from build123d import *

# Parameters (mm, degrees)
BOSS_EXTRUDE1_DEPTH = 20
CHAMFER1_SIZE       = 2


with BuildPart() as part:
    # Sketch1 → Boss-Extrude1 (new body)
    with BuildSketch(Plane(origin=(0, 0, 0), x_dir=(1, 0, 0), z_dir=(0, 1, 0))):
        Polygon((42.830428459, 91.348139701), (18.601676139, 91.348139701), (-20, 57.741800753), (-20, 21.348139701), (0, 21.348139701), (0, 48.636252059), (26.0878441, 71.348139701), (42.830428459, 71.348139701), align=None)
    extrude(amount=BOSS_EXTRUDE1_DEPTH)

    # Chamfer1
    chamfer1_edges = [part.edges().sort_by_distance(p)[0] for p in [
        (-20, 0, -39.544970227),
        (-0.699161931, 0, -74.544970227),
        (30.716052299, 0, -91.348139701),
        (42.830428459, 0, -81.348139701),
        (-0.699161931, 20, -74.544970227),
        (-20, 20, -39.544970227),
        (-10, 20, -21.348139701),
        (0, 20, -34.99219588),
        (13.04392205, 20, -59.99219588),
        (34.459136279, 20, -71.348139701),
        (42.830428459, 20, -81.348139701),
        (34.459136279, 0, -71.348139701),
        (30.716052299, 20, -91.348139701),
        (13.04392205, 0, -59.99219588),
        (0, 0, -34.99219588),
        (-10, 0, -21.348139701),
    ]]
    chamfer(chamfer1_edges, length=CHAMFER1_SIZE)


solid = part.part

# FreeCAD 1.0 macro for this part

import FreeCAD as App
import Part
import Sketcher

V = App.Vector


def edges_at(feature, points):
    """Names of the edges that pass closest to the given points."""
    edges = feature.Shape.Edges
    near = lambda p: min(range(len(edges)), key=lambda i: edges[i].distToShape(Part.Vertex(*p))[0])
    return sorted({f"Edge{near(p) + 1}" for p in points})


def add_polygon(sketch, points):
    """Adds a closed chain of lines whose ends are joined by coincident constraints."""
    first, n = sketch.GeometryCount, len(points)
    for a, b in zip(points, points[1:] + points[:1]):
        sketch.addGeometry(Part.LineSegment(App.Vector(*a, 0), App.Vector(*b, 0)), False)
    for i in range(n):
        sketch.addConstraint(Sketcher.Constraint("Coincident", first + i, 2, first + (i + 1) % n, 1))

doc = App.newDocument("Part")
body = doc.addObject("PartDesign::Body", "Body")

sketch1 = body.newObject("Sketcher::SketchObject", "Sketch")
sketch1.AttachmentSupport = (doc.getObject("XZ_Plane"), [""])
sketch1.MapMode = "FlatFace"
add_polygon(sketch1, [(43, -91), (19, -91), (-20, -58), (-20, -21), (0, -21), (0, -49), (26, -71), (43, -71)])
sketch1.addConstraint([
    Sketcher.Constraint("Horizontal", 0),
    Sketcher.Constraint("Vertical", 2),
    Sketcher.Constraint("Horizontal", 3),
    Sketcher.Constraint("Vertical", 4),
    Sketcher.Constraint("Horizontal", 6),
    Sketcher.Constraint("Vertical", 7),
    Sketcher.Constraint("PointOnObject", 3, 2, -2),
    Sketcher.Constraint("Parallel", 1, 5),
    Sketcher.Constraint("Equal", 3, 7),
    Sketcher.Constraint("DistanceX", 3, 1, 3, 2, 20.0),
    Sketcher.Constraint("DistanceY", 0, 2, 2, 2, 70.0),
    Sketcher.Constraint("DistanceY", 2, 1, 2, 2, 36.393661),
    Sketcher.Constraint("DistanceY", 1, 2, -1, 1, 57.741801),
    Sketcher.Constraint("Distance", 1, 51.180811),
    Sketcher.Constraint("DistanceX", 0, 2, 0, 1, 24.228752),
    Sketcher.Constraint("DistanceX", 6, 1, 6, 2, 16.742584),
])
pad1 = body.newObject("PartDesign::Pad", "Pad")
pad1.Profile = sketch1
pad1.Length = 20
pad1.Reversed = True
doc.recompute()

chamfer = body.newObject("PartDesign::Chamfer", "Chamfer")
chamfer.Base = (pad1, edges_at(pad1, [
    (-20, 0, -39.545),
    (-0.699, 0, -74.545),
    (30.716, 0, -91.348),
    (42.83, 0, -81.348),
    (-0.699, 20, -74.545),
    (-20, 20, -39.545),
    (-10, 20, -21.348),
    (0, 20, -34.992),
    (13.044, 20, -59.992),
    (34.459, 20, -71.348),
    (42.83, 20, -81.348),
    (34.459, 0, -71.348),
    (30.716, 20, -91.348),
    (13.044, 0, -59.992),
    (0, 0, -34.992),
    (-10, 0, -21.348),
]))
chamfer.Size = 2

doc.recompute()
